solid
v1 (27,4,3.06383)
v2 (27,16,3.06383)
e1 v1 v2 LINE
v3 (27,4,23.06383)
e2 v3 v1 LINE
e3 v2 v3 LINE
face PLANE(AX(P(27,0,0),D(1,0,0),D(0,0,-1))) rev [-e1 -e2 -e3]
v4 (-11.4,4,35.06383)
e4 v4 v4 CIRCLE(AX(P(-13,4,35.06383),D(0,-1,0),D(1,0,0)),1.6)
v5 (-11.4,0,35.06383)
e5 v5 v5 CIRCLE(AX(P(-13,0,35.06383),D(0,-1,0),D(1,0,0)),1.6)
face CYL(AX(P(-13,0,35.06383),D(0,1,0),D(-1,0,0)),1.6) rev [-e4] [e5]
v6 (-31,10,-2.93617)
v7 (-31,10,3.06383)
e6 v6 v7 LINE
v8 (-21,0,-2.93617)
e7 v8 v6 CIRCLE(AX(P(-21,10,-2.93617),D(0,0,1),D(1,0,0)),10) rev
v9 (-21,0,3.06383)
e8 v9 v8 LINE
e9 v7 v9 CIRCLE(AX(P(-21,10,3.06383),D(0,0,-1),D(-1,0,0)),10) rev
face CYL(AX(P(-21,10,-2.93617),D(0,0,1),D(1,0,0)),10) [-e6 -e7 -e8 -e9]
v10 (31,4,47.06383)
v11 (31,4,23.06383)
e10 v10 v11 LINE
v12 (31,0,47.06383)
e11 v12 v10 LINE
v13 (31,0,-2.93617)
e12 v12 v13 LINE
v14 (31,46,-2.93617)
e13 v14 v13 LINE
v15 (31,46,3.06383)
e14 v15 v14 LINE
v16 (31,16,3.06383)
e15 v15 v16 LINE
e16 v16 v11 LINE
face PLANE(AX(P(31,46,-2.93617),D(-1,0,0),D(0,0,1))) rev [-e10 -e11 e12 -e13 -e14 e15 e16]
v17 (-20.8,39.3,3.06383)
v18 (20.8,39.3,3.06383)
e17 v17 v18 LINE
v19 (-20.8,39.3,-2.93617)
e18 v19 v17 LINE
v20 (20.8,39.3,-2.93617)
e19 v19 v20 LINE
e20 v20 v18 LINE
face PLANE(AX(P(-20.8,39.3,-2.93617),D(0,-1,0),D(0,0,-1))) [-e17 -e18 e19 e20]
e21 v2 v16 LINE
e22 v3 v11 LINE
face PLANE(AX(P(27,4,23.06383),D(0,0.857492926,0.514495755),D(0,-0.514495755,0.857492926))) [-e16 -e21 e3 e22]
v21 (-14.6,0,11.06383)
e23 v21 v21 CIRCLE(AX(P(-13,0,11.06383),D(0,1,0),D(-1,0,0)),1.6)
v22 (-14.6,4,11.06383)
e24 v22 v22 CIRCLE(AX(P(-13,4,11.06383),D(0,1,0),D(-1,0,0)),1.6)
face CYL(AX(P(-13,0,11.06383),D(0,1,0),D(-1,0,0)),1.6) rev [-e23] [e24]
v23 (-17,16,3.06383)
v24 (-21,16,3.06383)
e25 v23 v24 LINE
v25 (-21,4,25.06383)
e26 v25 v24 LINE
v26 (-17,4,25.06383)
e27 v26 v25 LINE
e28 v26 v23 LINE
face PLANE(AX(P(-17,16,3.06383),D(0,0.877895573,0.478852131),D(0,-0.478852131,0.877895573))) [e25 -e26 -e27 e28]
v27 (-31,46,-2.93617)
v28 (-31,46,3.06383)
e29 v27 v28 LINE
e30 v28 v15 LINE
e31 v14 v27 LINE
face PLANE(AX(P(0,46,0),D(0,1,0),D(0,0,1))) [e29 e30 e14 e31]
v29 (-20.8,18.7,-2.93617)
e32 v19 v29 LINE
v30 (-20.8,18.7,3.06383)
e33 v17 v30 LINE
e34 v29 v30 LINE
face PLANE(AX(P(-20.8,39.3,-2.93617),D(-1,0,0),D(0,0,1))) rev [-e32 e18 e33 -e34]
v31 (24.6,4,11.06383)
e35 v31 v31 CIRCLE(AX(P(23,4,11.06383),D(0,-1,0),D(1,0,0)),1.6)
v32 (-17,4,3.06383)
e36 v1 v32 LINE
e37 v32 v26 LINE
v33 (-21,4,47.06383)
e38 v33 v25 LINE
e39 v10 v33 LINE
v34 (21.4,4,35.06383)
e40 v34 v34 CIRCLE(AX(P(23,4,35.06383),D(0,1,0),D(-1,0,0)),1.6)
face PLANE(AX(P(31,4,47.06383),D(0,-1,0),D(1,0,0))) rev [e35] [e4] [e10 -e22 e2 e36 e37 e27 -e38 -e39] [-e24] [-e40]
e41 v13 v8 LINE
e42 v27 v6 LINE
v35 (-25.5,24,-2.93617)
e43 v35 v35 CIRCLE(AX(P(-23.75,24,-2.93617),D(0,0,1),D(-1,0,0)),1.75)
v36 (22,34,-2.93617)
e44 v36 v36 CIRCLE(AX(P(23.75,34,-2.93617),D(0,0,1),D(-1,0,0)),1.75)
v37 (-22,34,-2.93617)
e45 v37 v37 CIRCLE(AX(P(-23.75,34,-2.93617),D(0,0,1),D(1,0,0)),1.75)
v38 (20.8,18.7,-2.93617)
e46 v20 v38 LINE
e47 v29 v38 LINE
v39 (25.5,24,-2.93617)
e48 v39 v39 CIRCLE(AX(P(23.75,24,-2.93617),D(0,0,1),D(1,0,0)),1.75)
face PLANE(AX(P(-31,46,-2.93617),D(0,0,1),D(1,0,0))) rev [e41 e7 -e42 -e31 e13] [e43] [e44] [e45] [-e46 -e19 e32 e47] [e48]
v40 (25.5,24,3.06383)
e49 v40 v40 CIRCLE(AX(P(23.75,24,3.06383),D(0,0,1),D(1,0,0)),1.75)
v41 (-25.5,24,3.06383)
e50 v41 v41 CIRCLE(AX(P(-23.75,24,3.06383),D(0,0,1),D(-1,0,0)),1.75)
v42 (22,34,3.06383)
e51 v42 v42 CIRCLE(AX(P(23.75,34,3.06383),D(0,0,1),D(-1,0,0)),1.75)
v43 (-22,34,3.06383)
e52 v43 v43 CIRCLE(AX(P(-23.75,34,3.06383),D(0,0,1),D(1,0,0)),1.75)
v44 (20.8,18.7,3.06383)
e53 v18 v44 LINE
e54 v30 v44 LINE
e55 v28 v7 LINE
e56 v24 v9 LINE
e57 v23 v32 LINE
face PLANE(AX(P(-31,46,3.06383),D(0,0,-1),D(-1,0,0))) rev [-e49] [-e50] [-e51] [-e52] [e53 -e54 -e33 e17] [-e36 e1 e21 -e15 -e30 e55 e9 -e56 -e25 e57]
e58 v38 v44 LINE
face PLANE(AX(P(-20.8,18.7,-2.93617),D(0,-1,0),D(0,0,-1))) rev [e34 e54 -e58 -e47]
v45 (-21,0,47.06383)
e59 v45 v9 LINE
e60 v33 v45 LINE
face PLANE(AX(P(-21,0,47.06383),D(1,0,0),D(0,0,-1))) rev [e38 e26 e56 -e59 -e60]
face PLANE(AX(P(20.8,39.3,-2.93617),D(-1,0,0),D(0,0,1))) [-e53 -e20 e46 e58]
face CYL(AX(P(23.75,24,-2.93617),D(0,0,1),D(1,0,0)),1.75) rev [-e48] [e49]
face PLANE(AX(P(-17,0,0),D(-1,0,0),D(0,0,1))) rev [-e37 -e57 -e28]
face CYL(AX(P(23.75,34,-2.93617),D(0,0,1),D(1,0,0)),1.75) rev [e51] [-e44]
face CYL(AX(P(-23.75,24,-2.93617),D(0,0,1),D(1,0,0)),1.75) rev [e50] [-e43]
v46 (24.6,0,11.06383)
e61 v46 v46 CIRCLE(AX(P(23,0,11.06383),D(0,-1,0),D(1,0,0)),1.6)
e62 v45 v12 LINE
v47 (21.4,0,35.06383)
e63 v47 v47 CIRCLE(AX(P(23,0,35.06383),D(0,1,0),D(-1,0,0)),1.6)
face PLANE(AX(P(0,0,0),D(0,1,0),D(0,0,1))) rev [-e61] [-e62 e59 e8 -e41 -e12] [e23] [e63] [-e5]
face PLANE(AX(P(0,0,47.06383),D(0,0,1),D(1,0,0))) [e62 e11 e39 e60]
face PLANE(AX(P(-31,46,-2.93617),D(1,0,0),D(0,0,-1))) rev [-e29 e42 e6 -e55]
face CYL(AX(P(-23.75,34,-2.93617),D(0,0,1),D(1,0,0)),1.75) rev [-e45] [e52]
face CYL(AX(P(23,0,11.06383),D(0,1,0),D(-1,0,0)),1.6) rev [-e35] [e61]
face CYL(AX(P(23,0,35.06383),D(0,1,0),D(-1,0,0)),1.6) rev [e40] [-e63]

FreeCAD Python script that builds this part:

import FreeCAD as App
import Part
import Sketcher
from FreeCAD import Vector


def edges_at(feature, points):
    """Names of the edges that pass closest to the given points."""
    edges = feature.Shape.Edges
    near = lambda p: min(range(len(edges)), key=lambda i: edges[i].distToShape(Part.Vertex(*p))[0])
    return sorted({f"Edge{near(p) + 1}" for p in points})


def add_polygon(sketch, points):
    """Adds a closed chain of lines whose ends are joined by coincident constraints."""
    first, n = sketch.GeometryCount, len(points)
    for a, b in zip(points, points[1:] + points[:1]):
        sketch.addGeometry(Part.LineSegment(App.Vector(*a, 0), App.Vector(*b, 0)), False)
    for i in range(n):
        sketch.addConstraint(Sketcher.Constraint("Coincident", first + i, 2, first + (i + 1) % n, 1))

doc = App.newDocument("Part")
body = doc.addObject("PartDesign::Body", "Body")

sketch1 = body.newObject("Sketcher::SketchObject", "Sketch")
sketch1.AttachmentSupport = (doc.getObject("XZ_Plane"), [""])
sketch1.MapMode = "FlatFace"
add_polygon(sketch1, [(-31, -3), (-31, 3), (31, 3), (31, -3)])
sketch1.addConstraint([
    Sketcher.Constraint("Vertical", 0),
    Sketcher.Constraint("Horizontal", 1),
    Sketcher.Constraint("Vertical", 2),
    Sketcher.Constraint("Horizontal", 3),
    Sketcher.Constraint("DistanceX", 1, 1, 1, 2, 62.0),
    Sketcher.Constraint("DistanceY", 0, 1, 0, 2, 6.0),
    Sketcher.Constraint("DistanceX", 0, 2, -1, 1, 31.0),
    Sketcher.Constraint("DistanceY", -1, 1, 0, 2, 3.06383),
])
pad1 = body.newObject("PartDesign::Pad", "Pad")
pad1.Profile = sketch1
pad1.Length = 46
pad1.Reversed = True

sketch2 = body.newObject("Sketcher::SketchObject", "Sketch001")
sketch2.AttachmentSupport = (doc.getObject("XY_Plane"), [""])
sketch2.MapMode = "FlatFace"
add_polygon(sketch2, [(-21, 39), (-21, 19), (21, 19), (21, 39)])
sketch2.addConstraint([
    Sketcher.Constraint("Vertical", 0),
    Sketcher.Constraint("Horizontal", 1),
    Sketcher.Constraint("Vertical", 2),
    Sketcher.Constraint("Horizontal", 3),
    Sketcher.Constraint("DistanceX", 1, 1, 1, 2, 41.6),
    Sketcher.Constraint("DistanceY", 0, 2, 0, 1, 20.6),
    Sketcher.Constraint("DistanceX", 0, 2, -1, 1, 20.8),
    Sketcher.Constraint("DistanceY", -1, 1, 0, 2, 18.7),
])
pocket1 = body.newObject("PartDesign::Pocket", "Pocket")
pocket1.Profile = sketch2
pocket1.Type = "ThroughAll"
pocket1.Midplane = True

sketch3 = body.newObject("Sketcher::SketchObject", "Sketch002")
sketch3.AttachmentSupport = (doc.getObject("XY_Plane"), [""])
sketch3.MapMode = "FlatFace"
sketch3.AttachmentOffset = App.Placement(Vector(0, 0, 3.06383), App.Rotation())
sketch3.addGeometry([
    Part.Circle(Vector(-23.8, 34, 0), Vector(0, 0, 1), 1.8),
    Part.Circle(Vector(-23.8, 24, 0), Vector(0, 0, 1), 1.8),
    Part.Circle(Vector(23.8, 24, 0), Vector(0, 0, 1), 1.8),
    Part.Circle(Vector(23.8, 34, 0), Vector(0, 0, 1), 1.8),
], False)
sketch3.addConstraint([
    Sketcher.Constraint("Equal", 0, 1),
    Sketcher.Constraint("Equal", 1, 2),
    Sketcher.Constraint("Equal", 2, 3),
    Sketcher.Constraint("Symmetric", 1, 3, 2, 3, -2),
    Sketcher.Constraint("Symmetric", 0, 3, 3, 3, -2),
    Sketcher.Constraint("Vertical", 0, 3, 1, 3),
    Sketcher.Constraint("Diameter", 0, 3.5),
    Sketcher.Constraint("DistanceY", -1, 1, 0, 3, 34.0),
    Sketcher.Constraint("DistanceY", -1, 1, 1, 3, 24.0),
    Sketcher.Constraint("DistanceX", 1, 3, 2, 3, 47.5),
])
pocket2 = body.newObject("PartDesign::Pocket", "Pocket001")
pocket2.Profile = sketch3
pocket2.Type = "ThroughAll"

sketch4 = body.newObject("Sketcher::SketchObject", "Sketch003")
sketch4.AttachmentSupport = (doc.getObject("XY_Plane"), [""])
sketch4.MapMode = "FlatFace"
sketch4.AttachmentOffset = App.Placement(Vector(0, 0, 3.06383), App.Rotation())
add_polygon(sketch4, [(-21, 4), (-21, 0), (31, 0), (31, 4)])
sketch4.addConstraint([
    Sketcher.Constraint("Vertical", 0),
    Sketcher.Constraint("Horizontal", 1),
    Sketcher.Constraint("Vertical", 2),
    Sketcher.Constraint("Horizontal", 3),
    Sketcher.Constraint("PointOnObject", 0, 2, -1),
    Sketcher.Constraint("DistanceX", 1, 1, 1, 2, 52.0),
    Sketcher.Constraint("DistanceY", 0, 2, 0, 1, 4.0),
    Sketcher.Constraint("DistanceX", 0, 2, -1, 1, 21.0),
])
pad2 = body.newObject("PartDesign::Pad", "Pad001")
pad2.Profile = sketch4
pad2.Length = 44

sketch5 = body.newObject("Sketcher::SketchObject", "Sketch004")
sketch5.AttachmentSupport = (doc.getObject("XZ_Plane"), [""])
sketch5.MapMode = "FlatFace"
sketch5.AttachmentOffset = App.Placement(Vector(0, 0, -4), App.Rotation())
sketch5.addGeometry([
    Part.Circle(Vector(-13, 11.1, 0), Vector(0, 0, 1), 1.6),
    Part.Circle(Vector(-13, 35.1, 0), Vector(0, 0, 1), 1.6),
    Part.Circle(Vector(23, 35.1, 0), Vector(0, 0, 1), 1.6),
    Part.Circle(Vector(23, 11.1, 0), Vector(0, 0, 1), 1.6),
], False)
sketch5.addConstraint([
    Sketcher.Constraint("Equal", 0, 1),
    Sketcher.Constraint("Equal", 1, 2),
    Sketcher.Constraint("Equal", 2, 3),
    Sketcher.Constraint("Horizontal", 1, 3, 2, 3),
    Sketcher.Constraint("Horizontal", 0, 3, 3, 3),
    Sketcher.Constraint("Vertical", 0, 3, 1, 3),
    Sketcher.Constraint("Vertical", 2, 3, 3, 3),
    Sketcher.Constraint("Diameter", 0, 3.2),
    Sketcher.Constraint("DistanceX", 0, 3, -1, 1, 13.0),
    Sketcher.Constraint("DistanceX", -1, 1, 2, 3, 23.0),
    Sketcher.Constraint("DistanceY", 0, 3, 1, 3, 24.0),
    Sketcher.Constraint("DistanceY", -1, 1, 0, 3, 11.06383),
])
pocket3 = body.newObject("PartDesign::Pocket", "Pocket002")
pocket3.Profile = sketch5
pocket3.Type = "ThroughAll"
pocket3.Reversed = True

sketch6 = body.newObject("Sketcher::SketchObject", "Sketch005")
sketch6.AttachmentSupport = (doc.getObject("YZ_Plane"), [""])
sketch6.MapMode = "FlatFace"
sketch6.AttachmentOffset = App.Placement(Vector(0, 0, 31), App.Rotation())
add_polygon(sketch6, [(16, 3), (4, 23), (4, 3)])
sketch6.addConstraint([
    Sketcher.Constraint("Vertical", 1),
    Sketcher.Constraint("Horizontal", 2),
    Sketcher.Constraint("DistanceX", 2, 1, 2, 2, 12.0),
    Sketcher.Constraint("DistanceY", 1, 2, 1, 1, 20.0),
    Sketcher.Constraint("DistanceX", -1, 1, 0, 2, 4.0),
    Sketcher.Constraint("DistanceY", -1, 1, 0, 2, 23.06383),
])
pad3 = body.newObject("PartDesign::Pad", "Pad002")
pad3.Profile = sketch6
pad3.Length = 4
pad3.Reversed = True

sketch7 = body.newObject("Sketcher::SketchObject", "Sketch006")
sketch7.AttachmentSupport = (doc.getObject("YZ_Plane"), [""])
sketch7.MapMode = "FlatFace"
sketch7.AttachmentOffset = App.Placement(Vector(0, 0, -21), App.Rotation())
add_polygon(sketch7, [(4, 3), (4, 25), (16, 3)])
sketch7.addConstraint([
    Sketcher.Constraint("Vertical", 0),
    Sketcher.Constraint("Horizontal", 2),
    Sketcher.Constraint("DistanceX", 2, 2, 2, 1, 12.0),
    Sketcher.Constraint("DistanceY", 0, 1, 0, 2, 22.0),
    Sketcher.Constraint("DistanceX", -1, 1, 0, 2, 4.0),
    Sketcher.Constraint("DistanceY", -1, 1, 0, 2, 25.06383),
])
pad4 = body.newObject("PartDesign::Pad", "Pad003")
pad4.Profile = sketch7
pad4.Length = 4
doc.recompute()

fillet = body.newObject("PartDesign::Fillet", "Fillet")
fillet.Base = (pad4, edges_at(pad4, [(-31, 0, 0.064)]))
fillet.Radius = 10

doc.recompute()
